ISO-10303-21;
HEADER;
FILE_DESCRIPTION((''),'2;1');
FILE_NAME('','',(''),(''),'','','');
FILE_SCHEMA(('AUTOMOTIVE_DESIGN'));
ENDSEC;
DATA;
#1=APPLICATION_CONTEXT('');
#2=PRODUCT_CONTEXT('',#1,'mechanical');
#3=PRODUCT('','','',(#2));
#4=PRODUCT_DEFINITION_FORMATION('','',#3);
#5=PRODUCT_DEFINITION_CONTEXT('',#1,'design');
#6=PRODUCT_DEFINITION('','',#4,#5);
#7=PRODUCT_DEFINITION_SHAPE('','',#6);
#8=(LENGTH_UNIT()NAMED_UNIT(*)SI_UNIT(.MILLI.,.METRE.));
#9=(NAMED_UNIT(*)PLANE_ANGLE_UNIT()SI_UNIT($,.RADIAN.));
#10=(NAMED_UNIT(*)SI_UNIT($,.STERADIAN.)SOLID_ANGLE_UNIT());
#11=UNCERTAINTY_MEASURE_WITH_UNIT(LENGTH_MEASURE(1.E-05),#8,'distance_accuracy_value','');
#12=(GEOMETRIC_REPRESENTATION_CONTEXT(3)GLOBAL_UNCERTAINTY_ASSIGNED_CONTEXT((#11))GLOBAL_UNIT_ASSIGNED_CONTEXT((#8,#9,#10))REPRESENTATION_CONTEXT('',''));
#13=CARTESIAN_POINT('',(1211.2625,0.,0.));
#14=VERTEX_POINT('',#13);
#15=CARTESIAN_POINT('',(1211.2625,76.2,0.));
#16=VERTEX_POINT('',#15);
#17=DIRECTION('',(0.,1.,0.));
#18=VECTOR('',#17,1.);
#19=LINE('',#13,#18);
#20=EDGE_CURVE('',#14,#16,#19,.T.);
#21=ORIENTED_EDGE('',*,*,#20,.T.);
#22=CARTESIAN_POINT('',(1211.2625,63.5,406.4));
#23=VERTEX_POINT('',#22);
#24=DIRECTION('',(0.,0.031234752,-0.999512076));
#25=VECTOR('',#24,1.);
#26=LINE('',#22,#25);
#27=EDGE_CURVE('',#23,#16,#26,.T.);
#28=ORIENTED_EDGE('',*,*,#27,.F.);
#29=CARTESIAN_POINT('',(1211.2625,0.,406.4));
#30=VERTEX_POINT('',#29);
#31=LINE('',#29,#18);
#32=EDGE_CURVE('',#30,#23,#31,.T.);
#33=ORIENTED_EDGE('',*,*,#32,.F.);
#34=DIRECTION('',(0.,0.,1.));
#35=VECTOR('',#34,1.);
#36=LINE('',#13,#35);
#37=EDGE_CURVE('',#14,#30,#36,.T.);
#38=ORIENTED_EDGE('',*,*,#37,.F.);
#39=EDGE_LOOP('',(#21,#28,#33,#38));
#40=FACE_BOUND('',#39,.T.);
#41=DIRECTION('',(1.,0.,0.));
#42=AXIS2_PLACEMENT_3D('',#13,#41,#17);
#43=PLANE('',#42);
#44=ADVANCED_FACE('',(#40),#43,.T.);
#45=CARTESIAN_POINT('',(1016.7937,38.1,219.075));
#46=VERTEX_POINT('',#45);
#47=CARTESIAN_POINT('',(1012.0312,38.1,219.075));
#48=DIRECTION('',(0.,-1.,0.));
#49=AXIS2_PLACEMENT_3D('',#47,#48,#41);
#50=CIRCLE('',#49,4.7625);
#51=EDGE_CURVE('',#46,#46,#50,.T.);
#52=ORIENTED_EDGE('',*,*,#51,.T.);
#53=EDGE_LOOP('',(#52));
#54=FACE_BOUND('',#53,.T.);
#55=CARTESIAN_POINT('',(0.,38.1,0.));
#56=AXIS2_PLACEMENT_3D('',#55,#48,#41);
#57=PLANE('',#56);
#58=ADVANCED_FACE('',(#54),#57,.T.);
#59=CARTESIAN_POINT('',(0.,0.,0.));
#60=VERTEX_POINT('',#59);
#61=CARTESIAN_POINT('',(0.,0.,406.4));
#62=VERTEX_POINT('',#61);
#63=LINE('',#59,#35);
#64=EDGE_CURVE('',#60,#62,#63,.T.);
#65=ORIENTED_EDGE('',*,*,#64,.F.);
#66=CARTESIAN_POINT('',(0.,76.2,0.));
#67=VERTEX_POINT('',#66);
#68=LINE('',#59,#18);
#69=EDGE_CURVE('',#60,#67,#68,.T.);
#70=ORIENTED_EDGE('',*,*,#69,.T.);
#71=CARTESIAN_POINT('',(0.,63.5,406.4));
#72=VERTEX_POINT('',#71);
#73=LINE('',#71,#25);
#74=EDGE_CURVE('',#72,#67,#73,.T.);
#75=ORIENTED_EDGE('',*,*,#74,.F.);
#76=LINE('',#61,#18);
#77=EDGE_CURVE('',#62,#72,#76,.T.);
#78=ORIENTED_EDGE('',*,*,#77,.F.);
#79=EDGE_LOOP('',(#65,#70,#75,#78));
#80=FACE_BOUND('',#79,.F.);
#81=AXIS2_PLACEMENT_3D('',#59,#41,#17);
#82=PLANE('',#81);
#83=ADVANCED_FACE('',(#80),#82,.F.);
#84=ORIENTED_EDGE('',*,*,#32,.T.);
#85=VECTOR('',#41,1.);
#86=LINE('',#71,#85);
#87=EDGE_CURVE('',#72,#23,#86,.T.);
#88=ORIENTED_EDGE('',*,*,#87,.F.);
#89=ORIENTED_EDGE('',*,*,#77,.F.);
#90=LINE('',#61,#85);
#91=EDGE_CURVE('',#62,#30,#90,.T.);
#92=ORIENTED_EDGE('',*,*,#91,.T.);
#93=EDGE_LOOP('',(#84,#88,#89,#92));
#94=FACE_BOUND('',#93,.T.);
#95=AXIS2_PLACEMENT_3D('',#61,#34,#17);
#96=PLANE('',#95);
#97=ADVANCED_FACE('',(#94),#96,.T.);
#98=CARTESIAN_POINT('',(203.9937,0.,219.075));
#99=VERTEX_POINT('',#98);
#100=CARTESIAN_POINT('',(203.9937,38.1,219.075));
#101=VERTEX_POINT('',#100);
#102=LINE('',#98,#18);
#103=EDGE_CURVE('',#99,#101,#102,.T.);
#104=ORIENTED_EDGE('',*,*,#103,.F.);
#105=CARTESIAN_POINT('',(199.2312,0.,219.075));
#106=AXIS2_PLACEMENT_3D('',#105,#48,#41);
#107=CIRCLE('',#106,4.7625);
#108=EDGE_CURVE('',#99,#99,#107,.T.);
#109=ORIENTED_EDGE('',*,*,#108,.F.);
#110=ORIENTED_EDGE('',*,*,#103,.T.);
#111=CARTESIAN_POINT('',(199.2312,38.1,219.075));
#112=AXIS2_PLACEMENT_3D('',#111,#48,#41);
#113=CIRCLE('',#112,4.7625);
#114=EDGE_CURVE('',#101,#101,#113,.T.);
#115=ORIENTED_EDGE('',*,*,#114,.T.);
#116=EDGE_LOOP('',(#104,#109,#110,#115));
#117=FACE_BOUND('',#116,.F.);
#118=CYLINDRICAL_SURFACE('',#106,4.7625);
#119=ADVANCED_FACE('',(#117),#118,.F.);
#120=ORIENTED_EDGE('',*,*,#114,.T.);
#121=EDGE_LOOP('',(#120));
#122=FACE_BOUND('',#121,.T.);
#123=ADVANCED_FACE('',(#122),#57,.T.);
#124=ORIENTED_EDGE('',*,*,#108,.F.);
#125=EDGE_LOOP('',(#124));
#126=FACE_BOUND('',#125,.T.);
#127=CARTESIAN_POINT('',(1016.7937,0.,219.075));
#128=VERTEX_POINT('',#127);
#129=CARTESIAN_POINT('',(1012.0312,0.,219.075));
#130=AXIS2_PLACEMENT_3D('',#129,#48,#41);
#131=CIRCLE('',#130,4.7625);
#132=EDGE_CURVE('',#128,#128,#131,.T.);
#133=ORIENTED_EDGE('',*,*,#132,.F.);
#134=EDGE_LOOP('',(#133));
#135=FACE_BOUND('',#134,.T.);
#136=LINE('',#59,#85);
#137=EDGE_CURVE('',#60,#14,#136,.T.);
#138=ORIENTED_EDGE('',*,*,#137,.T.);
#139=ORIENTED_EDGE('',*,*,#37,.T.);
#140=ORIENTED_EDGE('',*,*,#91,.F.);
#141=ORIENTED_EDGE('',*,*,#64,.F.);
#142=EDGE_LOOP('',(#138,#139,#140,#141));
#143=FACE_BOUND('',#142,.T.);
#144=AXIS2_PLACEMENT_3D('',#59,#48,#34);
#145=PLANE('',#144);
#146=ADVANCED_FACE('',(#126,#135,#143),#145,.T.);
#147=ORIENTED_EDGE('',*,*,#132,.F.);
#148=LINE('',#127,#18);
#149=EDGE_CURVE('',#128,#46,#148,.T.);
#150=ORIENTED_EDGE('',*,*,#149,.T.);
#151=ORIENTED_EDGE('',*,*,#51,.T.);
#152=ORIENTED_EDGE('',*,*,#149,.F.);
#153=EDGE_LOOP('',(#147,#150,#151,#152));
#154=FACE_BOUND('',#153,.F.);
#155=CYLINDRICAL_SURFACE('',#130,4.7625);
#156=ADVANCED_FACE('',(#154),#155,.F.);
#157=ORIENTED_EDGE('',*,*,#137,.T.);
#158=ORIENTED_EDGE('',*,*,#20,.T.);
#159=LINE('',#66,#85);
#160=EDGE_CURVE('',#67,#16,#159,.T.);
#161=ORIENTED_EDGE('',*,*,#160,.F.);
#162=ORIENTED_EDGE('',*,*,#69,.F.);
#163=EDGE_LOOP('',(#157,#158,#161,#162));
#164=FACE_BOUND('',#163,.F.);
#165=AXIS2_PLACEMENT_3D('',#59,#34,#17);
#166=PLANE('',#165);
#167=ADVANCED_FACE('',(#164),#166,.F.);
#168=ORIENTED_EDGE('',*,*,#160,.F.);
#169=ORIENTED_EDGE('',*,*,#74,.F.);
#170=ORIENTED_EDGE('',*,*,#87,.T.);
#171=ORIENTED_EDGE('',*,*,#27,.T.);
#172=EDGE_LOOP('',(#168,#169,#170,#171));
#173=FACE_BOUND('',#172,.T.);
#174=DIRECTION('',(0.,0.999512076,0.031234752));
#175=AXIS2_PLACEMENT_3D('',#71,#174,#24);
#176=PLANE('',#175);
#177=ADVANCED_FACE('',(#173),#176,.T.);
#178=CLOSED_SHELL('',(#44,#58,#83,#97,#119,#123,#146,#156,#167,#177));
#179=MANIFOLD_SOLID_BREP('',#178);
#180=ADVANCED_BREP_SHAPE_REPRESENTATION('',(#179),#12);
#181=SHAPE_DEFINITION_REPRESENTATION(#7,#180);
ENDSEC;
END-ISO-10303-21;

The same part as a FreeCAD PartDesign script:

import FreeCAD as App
import Part
import Sketcher
Q = App.Units.Quantity

doc = App.newDocument("Part")
params = doc.addObject("Spreadsheet::Sheet", "Params")
for row, (alias, value) in enumerate([
    ("sketch1_width", "3 in"),
    ("sketch1_height", "16 in"),
    ("sketch1_width2", "2.5 in"),
    ("pad1_length", "47.6875 in"),
    ("sketch2_diameter", "0.375 in"),
    ("pocket1_length", "1.5 in"),
], start=1):
    params.set(f"A{row}", alias)
    params.set(f"B{row}", "=" + value)
    params.setAlias(f"B{row}", alias)

body = doc.addObject("PartDesign::Body", "Body")

# Sketch on YZ plane
sketch1 = body.newObject("Sketcher::SketchObject", "Sketch")
sketch1.AttachmentSupport = (doc.getObject("YZ_Plane"), [""])
sketch1.MapMode = "FlatFace"
sketch1.addGeometry([
    Part.LineSegment(App.Vector(0, 406, 0), App.Vector(0, 0, 0)),
    Part.LineSegment(App.Vector(0, 0, 0), App.Vector(76, 0, 0)),
    Part.LineSegment(App.Vector(76, 0, 0), App.Vector(64, 406, 0)),
    Part.LineSegment(App.Vector(64, 406, 0), App.Vector(0, 406, 0)),
], False)
sketch1.addConstraint([
    Sketcher.Constraint("Coincident", 0, 2, 1, 1),
    Sketcher.Constraint("Coincident", 1, 2, 2, 1),
    Sketcher.Constraint("Coincident", 2, 2, 3, 1),
    Sketcher.Constraint("Coincident", 3, 2, 0, 1),
    Sketcher.Constraint("Vertical", 0),
    Sketcher.Constraint("Horizontal", 1),
    Sketcher.Constraint("Horizontal", 3),
    Sketcher.Constraint("Coincident", 0, 2, -1, 1),
    Sketcher.Constraint("DistanceX", 1, 1, 1, 2, Q("3 in")),
    Sketcher.Constraint("DistanceY", 0, 2, 0, 1, Q("16 in")),
    Sketcher.Constraint("DistanceX", 3, 2, 3, 1, Q("2.5 in")),
])
sketch1.setExpression("Constraints[8]", "Params.sketch1_width")
sketch1.setExpression("Constraints[9]", "Params.sketch1_height")
sketch1.setExpression("Constraints[10]", "Params.sketch1_width2")
pad1 = body.newObject("PartDesign::Pad", "Pad")
pad1.Profile = sketch1
pad1.setExpression("Length", "Params.pad1_length")

# Sketch on XZ plane
sketch2 = body.newObject("Sketcher::SketchObject", "Sketch001")
sketch2.AttachmentSupport = (doc.getObject("XZ_Plane"), [""])
sketch2.MapMode = "FlatFace"
sketch2.addGeometry([
    Part.Circle(App.Vector(1012, 219.1, 0), App.Vector(0, 0, 1), 4.8),
    Part.Circle(App.Vector(199.2, 219.1, 0), App.Vector(0, 0, 1), 4.8),
], False)
sketch2.addConstraint([
    Sketcher.Constraint("Equal", 0, 1),
    Sketcher.Constraint("Horizontal", 0, 3, 1, 3),
    Sketcher.Constraint("Diameter", 0, Q("0.375 in")),
    Sketcher.Constraint("DistanceX", 1, 3, 0, 3, Q("32 in")),
    Sketcher.Constraint("DistanceX", -1, 1, 0, 3, Q("39.843748 in")),
    Sketcher.Constraint("DistanceY", -1, 1, 0, 3, Q("8.625 in")),
])
sketch2.setExpression("Constraints[2]", "Params.sketch2_diameter")
pocket1 = body.newObject("PartDesign::Pocket", "Pocket")
pocket1.Profile = sketch2
pocket1.setExpression("Length", "Params.pocket1_length")

doc.recompute()
